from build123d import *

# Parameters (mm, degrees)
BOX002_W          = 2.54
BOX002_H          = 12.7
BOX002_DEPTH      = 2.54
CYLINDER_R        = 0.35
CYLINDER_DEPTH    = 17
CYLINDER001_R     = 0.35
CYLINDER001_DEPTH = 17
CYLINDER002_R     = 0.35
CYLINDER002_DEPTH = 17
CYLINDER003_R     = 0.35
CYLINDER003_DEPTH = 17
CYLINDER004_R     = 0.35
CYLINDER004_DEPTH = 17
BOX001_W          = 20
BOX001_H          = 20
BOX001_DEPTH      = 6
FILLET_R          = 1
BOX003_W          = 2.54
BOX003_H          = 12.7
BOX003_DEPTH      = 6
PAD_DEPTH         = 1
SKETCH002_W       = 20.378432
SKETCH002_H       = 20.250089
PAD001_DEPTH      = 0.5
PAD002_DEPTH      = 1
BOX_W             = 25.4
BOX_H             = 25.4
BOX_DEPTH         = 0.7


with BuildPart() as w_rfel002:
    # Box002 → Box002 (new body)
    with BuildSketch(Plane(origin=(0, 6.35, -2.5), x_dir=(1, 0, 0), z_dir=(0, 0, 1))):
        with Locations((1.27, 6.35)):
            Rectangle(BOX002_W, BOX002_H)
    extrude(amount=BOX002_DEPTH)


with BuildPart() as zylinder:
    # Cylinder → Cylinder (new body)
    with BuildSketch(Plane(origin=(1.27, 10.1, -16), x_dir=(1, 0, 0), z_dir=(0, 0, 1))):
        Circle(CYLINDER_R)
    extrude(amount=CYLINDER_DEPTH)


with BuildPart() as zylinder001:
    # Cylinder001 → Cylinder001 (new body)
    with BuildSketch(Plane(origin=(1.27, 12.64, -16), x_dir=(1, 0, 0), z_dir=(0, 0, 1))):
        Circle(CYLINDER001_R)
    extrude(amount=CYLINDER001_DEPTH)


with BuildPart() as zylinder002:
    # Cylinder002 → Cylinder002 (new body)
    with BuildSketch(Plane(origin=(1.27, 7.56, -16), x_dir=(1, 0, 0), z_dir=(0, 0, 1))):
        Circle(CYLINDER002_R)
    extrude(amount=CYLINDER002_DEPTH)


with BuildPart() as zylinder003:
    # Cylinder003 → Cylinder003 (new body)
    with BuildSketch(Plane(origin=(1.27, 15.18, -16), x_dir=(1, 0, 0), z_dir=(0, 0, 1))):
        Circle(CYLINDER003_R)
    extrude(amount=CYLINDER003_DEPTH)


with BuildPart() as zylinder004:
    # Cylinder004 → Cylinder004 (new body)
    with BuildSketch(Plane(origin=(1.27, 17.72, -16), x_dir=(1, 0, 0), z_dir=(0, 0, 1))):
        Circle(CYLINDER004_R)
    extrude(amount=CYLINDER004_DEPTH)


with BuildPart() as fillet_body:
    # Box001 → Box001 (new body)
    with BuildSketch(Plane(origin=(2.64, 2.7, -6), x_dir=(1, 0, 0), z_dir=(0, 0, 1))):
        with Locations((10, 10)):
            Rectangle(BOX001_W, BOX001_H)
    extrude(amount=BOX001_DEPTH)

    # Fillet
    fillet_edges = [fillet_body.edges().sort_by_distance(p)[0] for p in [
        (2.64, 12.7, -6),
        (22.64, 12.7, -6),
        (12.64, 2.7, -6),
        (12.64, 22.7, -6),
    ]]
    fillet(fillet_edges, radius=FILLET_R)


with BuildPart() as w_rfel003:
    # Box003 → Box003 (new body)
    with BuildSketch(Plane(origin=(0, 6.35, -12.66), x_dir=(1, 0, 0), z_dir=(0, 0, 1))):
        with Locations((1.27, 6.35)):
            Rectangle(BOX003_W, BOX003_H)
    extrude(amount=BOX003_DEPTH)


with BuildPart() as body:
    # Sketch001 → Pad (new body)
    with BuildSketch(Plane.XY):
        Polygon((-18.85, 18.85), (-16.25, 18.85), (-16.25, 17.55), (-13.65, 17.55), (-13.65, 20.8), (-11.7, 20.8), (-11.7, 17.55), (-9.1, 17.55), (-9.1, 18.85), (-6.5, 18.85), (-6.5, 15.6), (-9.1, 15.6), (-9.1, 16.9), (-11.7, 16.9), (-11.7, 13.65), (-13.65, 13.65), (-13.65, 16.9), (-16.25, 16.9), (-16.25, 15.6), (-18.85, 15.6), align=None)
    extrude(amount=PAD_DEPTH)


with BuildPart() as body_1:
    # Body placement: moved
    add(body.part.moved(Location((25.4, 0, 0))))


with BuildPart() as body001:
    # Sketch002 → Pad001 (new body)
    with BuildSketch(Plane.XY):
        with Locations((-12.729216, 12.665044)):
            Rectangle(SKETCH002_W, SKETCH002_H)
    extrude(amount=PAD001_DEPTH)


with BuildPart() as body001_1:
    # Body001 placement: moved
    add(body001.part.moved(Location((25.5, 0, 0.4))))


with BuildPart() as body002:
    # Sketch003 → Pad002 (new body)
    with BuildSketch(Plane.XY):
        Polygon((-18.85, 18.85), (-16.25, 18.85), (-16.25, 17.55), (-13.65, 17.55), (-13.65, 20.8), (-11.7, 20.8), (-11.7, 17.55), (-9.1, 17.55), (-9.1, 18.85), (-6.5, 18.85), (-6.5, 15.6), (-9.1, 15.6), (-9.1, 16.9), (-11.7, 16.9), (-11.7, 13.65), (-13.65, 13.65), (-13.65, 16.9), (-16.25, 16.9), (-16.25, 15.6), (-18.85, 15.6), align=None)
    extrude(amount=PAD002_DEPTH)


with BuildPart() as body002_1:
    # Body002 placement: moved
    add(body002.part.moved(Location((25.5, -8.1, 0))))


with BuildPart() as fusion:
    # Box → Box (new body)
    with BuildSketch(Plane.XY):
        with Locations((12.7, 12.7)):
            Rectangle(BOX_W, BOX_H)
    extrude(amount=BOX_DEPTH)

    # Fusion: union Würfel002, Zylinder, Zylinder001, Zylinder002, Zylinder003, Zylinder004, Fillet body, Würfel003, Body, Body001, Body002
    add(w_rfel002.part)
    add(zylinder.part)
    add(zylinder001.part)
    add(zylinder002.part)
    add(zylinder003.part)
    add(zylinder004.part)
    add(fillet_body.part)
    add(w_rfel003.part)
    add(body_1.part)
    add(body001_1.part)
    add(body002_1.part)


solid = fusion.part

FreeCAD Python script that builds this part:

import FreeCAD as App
import Part
import Sketcher
from FreeCAD import Vector
Q = App.Units.Quantity


def edges_at(feature, points):
    """Names of the edges that pass closest to the given points."""
    edges = feature.Shape.Edges
    near = lambda p: min(range(len(edges)), key=lambda i: edges[i].distToShape(Part.Vertex(*p))[0])
    return sorted({f"Edge{near(p) + 1}" for p in points})


def add_polygon(sketch, points):
    """Adds a closed chain of lines whose ends are joined by coincident constraints."""
    first, n = sketch.GeometryCount, len(points)
    for a, b in zip(points, points[1:] + points[:1]):
        sketch.addGeometry(Part.LineSegment(App.Vector(*a, 0), App.Vector(*b, 0)), False)
    for i in range(n):
        sketch.addConstraint(Sketcher.Constraint("Coincident", first + i, 2, first + (i + 1) % n, 1))

doc = App.newDocument("Part")
body = doc.addObject("PartDesign::Body", "Body")

# Sketch on XY plane
sketch1 = body.newObject("Sketcher::SketchObject", "Sketch")
sketch1.AttachmentSupport = (doc.getObject("XY_Plane"), [""])
sketch1.MapMode = "FlatFace"
sketch1.AttachmentOffset = App.Placement(Vector(0, 0, -2.5), App.Rotation())
add_polygon(sketch1, [(0, 19.1), (0, 6.3), (2.5, 6.3), (2.5, 19.1)])  # lines 0-3
sketch1.addConstraint([
    Sketcher.Constraint("Vertical", 0),
    Sketcher.Constraint("Horizontal", 1),
    Sketcher.Constraint("Vertical", 2),
    Sketcher.Constraint("Horizontal", 3),
    Sketcher.Constraint("PointOnObject", 0, 2, -2),
    Sketcher.Constraint("DistanceY", 0, 2, 0, 1, Q("12.7 mm")),
    Sketcher.Constraint("DistanceX", 1, 1, 1, 2, Q("2.54 mm")),
    Sketcher.Constraint("DistanceY", -1, 1, 0, 2, Q("6.35 mm")),
])
pad1 = body.newObject("PartDesign::Pad", "Pad")
pad1.Profile = sketch1
pad1.Length = 2.54
body2 = doc.addObject("PartDesign::Body", "Body001")

# Sketch on XY plane
sketch2 = body2.newObject("Sketcher::SketchObject", "Sketch001")
sketch2.AttachmentSupport = (doc.getObject("XY_Plane001"), [""])
sketch2.MapMode = "FlatFace"
sketch2.AttachmentOffset = App.Placement(Vector(0, 0, -16), App.Rotation())
sketch2.addGeometry(Part.Circle(Vector(1.27, 10.1, 0), Vector(0, 0, 1), 0.35), False)
sketch2.addConstraint([
    Sketcher.Constraint("Diameter", 0, Q("0.7 mm")),
    Sketcher.Constraint("DistanceY", -1, 1, 0, 3, Q("10.1 mm")),
    Sketcher.Constraint("DistanceX", -1, 1, 0, 3, Q("1.27 mm")),
])
pad2 = body2.newObject("PartDesign::Pad", "Pad001")
pad2.Profile = sketch2
pad2.Length = 17
body3 = doc.addObject("PartDesign::Body", "Body002")

# Sketch on XY plane
sketch3 = body3.newObject("Sketcher::SketchObject", "Sketch002")
sketch3.AttachmentSupport = (doc.getObject("XY_Plane002"), [""])
sketch3.MapMode = "FlatFace"
sketch3.AttachmentOffset = App.Placement(Vector(0, 0, -16), App.Rotation())
sketch3.addGeometry(Part.Circle(Vector(1.27, 12.64, 0), Vector(0, 0, 1), 0.35), False)
sketch3.addConstraint([
    Sketcher.Constraint("Diameter", 0, Q("0.7 mm")),
    Sketcher.Constraint("DistanceX", -1, 1, 0, 3, Q("1.27 mm")),
    Sketcher.Constraint("DistanceY", -1, 1, 0, 3, Q("12.64 mm")),
])
pad3 = body3.newObject("PartDesign::Pad", "Pad002")
pad3.Profile = sketch3
pad3.Length = 17
body4 = doc.addObject("PartDesign::Body", "Body003")

# Sketch on XY plane
sketch4 = body4.newObject("Sketcher::SketchObject", "Sketch003")
sketch4.AttachmentSupport = (doc.getObject("XY_Plane003"), [""])
sketch4.MapMode = "FlatFace"
sketch4.AttachmentOffset = App.Placement(Vector(0, 0, -16), App.Rotation())
sketch4.addGeometry(Part.Circle(Vector(1.27, 7.56, 0), Vector(0, 0, 1), 0.35), False)
sketch4.addConstraint([
    Sketcher.Constraint("Diameter", 0, Q("0.7 mm")),
    Sketcher.Constraint("DistanceX", -1, 1, 0, 3, Q("1.27 mm")),
    Sketcher.Constraint("DistanceY", -1, 1, 0, 3, Q("7.56 mm")),
])
pad4 = body4.newObject("PartDesign::Pad", "Pad003")
pad4.Profile = sketch4
pad4.Length = 17
body5 = doc.addObject("PartDesign::Body", "Body004")

# Sketch on XY plane
sketch5 = body5.newObject("Sketcher::SketchObject", "Sketch004")
sketch5.AttachmentSupport = (doc.getObject("XY_Plane004"), [""])
sketch5.MapMode = "FlatFace"
sketch5.AttachmentOffset = App.Placement(Vector(0, 0, -16), App.Rotation())
sketch5.addGeometry(Part.Circle(Vector(1.27, 15.18, 0), Vector(0, 0, 1), 0.35), False)
sketch5.addConstraint([
    Sketcher.Constraint("Diameter", 0, Q("0.7 mm")),
    Sketcher.Constraint("DistanceX", -1, 1, 0, 3, Q("1.27 mm")),
    Sketcher.Constraint("DistanceY", -1, 1, 0, 3, Q("15.18 mm")),
])
pad5 = body5.newObject("PartDesign::Pad", "Pad004")
pad5.Profile = sketch5
pad5.Length = 17
body6 = doc.addObject("PartDesign::Body", "Body005")

# Sketch on XY plane
sketch6 = body6.newObject("Sketcher::SketchObject", "Sketch005")
sketch6.AttachmentSupport = (doc.getObject("XY_Plane005"), [""])
sketch6.MapMode = "FlatFace"
sketch6.AttachmentOffset = App.Placement(Vector(0, 0, -16), App.Rotation())
sketch6.addGeometry(Part.Circle(Vector(1.27, 17.72, 0), Vector(0, 0, 1), 0.35), False)
sketch6.addConstraint([
    Sketcher.Constraint("Diameter", 0, Q("0.7 mm")),
    Sketcher.Constraint("DistanceX", -1, 1, 0, 3, Q("1.27 mm")),
    Sketcher.Constraint("DistanceY", -1, 1, 0, 3, Q("17.72 mm")),
])
pad6 = body6.newObject("PartDesign::Pad", "Pad005")
pad6.Profile = sketch6
pad6.Length = 17
body7 = doc.addObject("PartDesign::Body", "Body006")

# Sketch on XY plane
sketch7 = body7.newObject("Sketcher::SketchObject", "Sketch006")
sketch7.AttachmentSupport = (doc.getObject("XY_Plane006"), [""])
sketch7.MapMode = "FlatFace"
sketch7.AttachmentOffset = App.Placement(Vector(0, 0, -6), App.Rotation())
add_polygon(sketch7, [(3, 23), (3, 3), (23, 3), (23, 23)])  # lines 0-3
sketch7.addConstraint([
    Sketcher.Constraint("Vertical", 0),
    Sketcher.Constraint("Horizontal", 1),
    Sketcher.Constraint("Vertical", 2),
    Sketcher.Constraint("Horizontal", 3),
    Sketcher.Constraint("Equal", 3, 0),
    Sketcher.Constraint("DistanceX", 1, 1, 1, 2, Q("20 mm")),
    Sketcher.Constraint("DistanceY", -1, 1, 0, 2, Q("2.7 mm")),
    Sketcher.Constraint("DistanceX", -1, 1, 0, 2, Q("2.64 mm")),
])
pad7 = body7.newObject("PartDesign::Pad", "Pad006")
pad7.Profile = sketch7
pad7.Length = 6
doc.recompute()

fillet = body7.newObject("PartDesign::Fillet", "Fillet")
fillet.Base = (pad7, edges_at(pad7, [
    (2.64, 12.7, -6),
    (22.64, 12.7, -6),
    (12.64, 2.7, -6),
    (12.64, 22.7, -6),
]))
fillet.Radius = 1
body8 = doc.addObject("PartDesign::Body", "Body007")

# Sketch on XY plane
sketch8 = body8.newObject("Sketcher::SketchObject", "Sketch007")
sketch8.AttachmentSupport = (doc.getObject("XY_Plane007"), [""])
sketch8.MapMode = "FlatFace"
sketch8.AttachmentOffset = App.Placement(Vector(0, 0, -12.66), App.Rotation())
add_polygon(sketch8, [(0, 19.1), (0, 6.3), (2.5, 6.3), (2.5, 19.1)])  # lines 0-3
sketch8.addConstraint([
    Sketcher.Constraint("Vertical", 0),
    Sketcher.Constraint("Horizontal", 1),
    Sketcher.Constraint("Vertical", 2),
    Sketcher.Constraint("Horizontal", 3),
    Sketcher.Constraint("PointOnObject", 0, 2, -2),
    Sketcher.Constraint("DistanceY", 0, 2, 0, 1, Q("12.7 mm")),
    Sketcher.Constraint("DistanceX", 1, 1, 1, 2, Q("2.54 mm")),
    Sketcher.Constraint("DistanceY", -1, 1, 0, 2, Q("6.35 mm")),
])
pad8 = body8.newObject("PartDesign::Pad", "Pad007")
pad8.Profile = sketch8
pad8.Length = 6
body9 = doc.addObject("PartDesign::Body", "Body008")

# Sketch on XY plane
sketch9 = body9.newObject("Sketcher::SketchObject", "Sketch008")
sketch9.AttachmentSupport = (doc.getObject("XY_Plane008"), [""])
sketch9.MapMode = "FlatFace"
add_polygon(sketch9, [(-16.2, 18.9), (-18.9, 18.9), (-18.9, 15.6), (-16.2, 15.6), (-16.2, 16.9), (-13.7, 16.9), (-13.7, 13.7), (-11.7, 13.7), (-11.7, 16.9), (-9.1, 16.9), (-9.1, 15.6), (-6.5, 15.6), (-6.5, 18.9), (-9.1, 18.9), (-9.1, 17.6), (-11.7, 17.6), (-11.7, 20.8), (-13.7, 20.8), (-13.7, 17.6), (-16.2, 17.6)])  # lines 0-19
sketch9.addConstraint([
    Sketcher.Constraint("Horizontal", 0),
    Sketcher.Constraint("Vertical", 1),
    Sketcher.Constraint("Horizontal", 2),
    Sketcher.Constraint("Vertical", 3),
    Sketcher.Constraint("Horizontal", 4),
    Sketcher.Constraint("Vertical", 5),
    Sketcher.Constraint("Horizontal", 6),
    Sketcher.Constraint("Vertical", 7),
    Sketcher.Constraint("Horizontal", 8),
    Sketcher.Constraint("Vertical", 9),
    Sketcher.Constraint("Horizontal", 10),
    Sketcher.Constraint("Vertical", 11),
    Sketcher.Constraint("Horizontal", 12),
    Sketcher.Constraint("Vertical", 13),
    Sketcher.Constraint("Horizontal", 14),
    Sketcher.Constraint("Vertical", 15),
    Sketcher.Constraint("Horizontal", 16),
    Sketcher.Constraint("Vertical", 17),
    Sketcher.Constraint("Horizontal", 18),
    Sketcher.Constraint("Vertical", 19),
    Sketcher.Constraint("Horizontal", 4, 2, 7, 2),
    Sketcher.Constraint("Horizontal", 2, 2, 9, 2),
    Sketcher.Constraint("Horizontal", 0, 2, 11, 2),
    Sketcher.Constraint("Horizontal", 14, 2, 17, 2),
    Sketcher.Constraint("Vertical", 9, 2, 12, 2),
    Sketcher.Constraint("Vertical", 7, 2, 14, 2),
    Sketcher.Constraint("Vertical", 5, 2, 16, 2),
    Sketcher.Constraint("Vertical", 3, 2, 18, 2),
    Sketcher.Constraint("Equal", 2, 4),
    Sketcher.Constraint("Equal", 4, 8),
    Sketcher.Constraint("Equal", 8, 10),
    Sketcher.Constraint("Equal", 1, 5),
    Sketcher.Constraint("Equal", 9, 13),
    Sketcher.Constraint("Equal", 11, 15),
    Sketcher.Constraint("DistanceX", 0, 2, 0, 1, Q("2.6 mm")),
    Sketcher.Constraint("DistanceY", 3, 1, 3, 2, Q("1.3 mm")),
    Sketcher.Constraint("DistanceX", 6, 1, 6, 2, Q("1.95 mm")),
    Sketcher.Constraint("DistanceY", 1, 2, 1, 1, Q("3.25 mm")),
    Sketcher.Constraint("DistanceY", -1, 1, 1, 2, Q("15.6 mm")),
    Sketcher.Constraint("DistanceX", 6, 2, -1, 1, Q("11.7 mm")),
])
pad9 = body9.newObject("PartDesign::Pad", "Pad008")
pad9.Profile = sketch9
pad9.Length = 1
body10 = doc.addObject("PartDesign::Body", "Body009")
doc.recompute()

body9.Placement = App.Placement(Vector(25.4, 0, 0), App.Rotation(Vector(0, 0, 1), 0))
boolean = body10.newObject("PartDesign::Boolean", "Boolean")
boolean.Type = "Fuse"
boolean.addObjects([body9])
body11 = doc.addObject("PartDesign::Body", "Body010")

# Sketch on XY plane
sketch10 = body11.newObject("Sketcher::SketchObject", "Sketch009")
sketch10.AttachmentSupport = (doc.getObject("XY_Plane010"), [""])
sketch10.MapMode = "FlatFace"
add_polygon(sketch10, [(-23, 23), (-23, 3), (-3, 3), (-3, 23)])  # lines 0-3
sketch10.addConstraint([
    Sketcher.Constraint("Vertical", 0),
    Sketcher.Constraint("Horizontal", 1),
    Sketcher.Constraint("Vertical", 2),
    Sketcher.Constraint("Horizontal", 3),
    Sketcher.Constraint("DistanceY", -1, 1, 0, 2, Q("2.539999 mm")),
    Sketcher.Constraint("DistanceX", 1, 2, -1, 1, Q("2.54 mm")),
    Sketcher.Constraint("DistanceX", 1, 1, 1, 2, Q("20.378432 mm")),
    Sketcher.Constraint("DistanceY", 0, 2, 0, 1, Q("20.250089 mm")),
])
pad10 = body11.newObject("PartDesign::Pad", "Pad009")
pad10.Profile = sketch10
pad10.Length = 0.5
body12 = doc.addObject("PartDesign::Body", "Body011")
doc.recompute()

body11.Placement = App.Placement(Vector(25.5, 0, 0.4), App.Rotation(Vector(0, 0, 1), 0))
boolean2 = body12.newObject("PartDesign::Boolean", "Boolean001")
boolean2.Type = "Fuse"
boolean2.addObjects([body11])
body13 = doc.addObject("PartDesign::Body", "Body012")

# Sketch on XY plane
sketch11 = body13.newObject("Sketcher::SketchObject", "Sketch010")
sketch11.AttachmentSupport = (doc.getObject("XY_Plane012"), [""])
sketch11.MapMode = "FlatFace"
add_polygon(sketch11, [(-16.2, 18.9), (-18.9, 18.9), (-18.9, 15.6), (-16.2, 15.6), (-16.2, 16.9), (-13.7, 16.9), (-13.7, 13.7), (-11.7, 13.7), (-11.7, 16.9), (-9.1, 16.9), (-9.1, 15.6), (-6.5, 15.6), (-6.5, 18.9), (-9.1, 18.9), (-9.1, 17.6), (-11.7, 17.6), (-11.7, 20.8), (-13.7, 20.8), (-13.7, 17.6), (-16.2, 17.6)])  # lines 0-19
sketch11.addConstraint([
    Sketcher.Constraint("Horizontal", 0),
    Sketcher.Constraint("Vertical", 1),
    Sketcher.Constraint("Horizontal", 2),
    Sketcher.Constraint("Vertical", 3),
    Sketcher.Constraint("Horizontal", 4),
    Sketcher.Constraint("Vertical", 5),
    Sketcher.Constraint("Horizontal", 6),
    Sketcher.Constraint("Vertical", 7),
    Sketcher.Constraint("Horizontal", 8),
    Sketcher.Constraint("Vertical", 9),
    Sketcher.Constraint("Horizontal", 10),
    Sketcher.Constraint("Vertical", 11),
    Sketcher.Constraint("Horizontal", 12),
    Sketcher.Constraint("Vertical", 13),
    Sketcher.Constraint("Horizontal", 14),
    Sketcher.Constraint("Vertical", 15),
    Sketcher.Constraint("Horizontal", 16),
    Sketcher.Constraint("Vertical", 17),
    Sketcher.Constraint("Horizontal", 18),
    Sketcher.Constraint("Vertical", 19),
    Sketcher.Constraint("Horizontal", 4, 2, 7, 2),
    Sketcher.Constraint("Horizontal", 2, 2, 9, 2),
    Sketcher.Constraint("Horizontal", 0, 2, 11, 2),
    Sketcher.Constraint("Horizontal", 14, 2, 17, 2),
    Sketcher.Constraint("Vertical", 9, 2, 12, 2),
    Sketcher.Constraint("Vertical", 7, 2, 14, 2),
    Sketcher.Constraint("Vertical", 5, 2, 16, 2),
    Sketcher.Constraint("Vertical", 3, 2, 18, 2),
    Sketcher.Constraint("Equal", 2, 4),
    Sketcher.Constraint("Equal", 4, 8),
    Sketcher.Constraint("Equal", 8, 10),
    Sketcher.Constraint("Equal", 1, 5),
    Sketcher.Constraint("Equal", 9, 13),
    Sketcher.Constraint("Equal", 11, 15),
    Sketcher.Constraint("DistanceX", 0, 2, 0, 1, Q("2.6 mm")),
    Sketcher.Constraint("DistanceY", 3, 1, 3, 2, Q("1.3 mm")),
    Sketcher.Constraint("DistanceX", 6, 1, 6, 2, Q("1.95 mm")),
    Sketcher.Constraint("DistanceY", 1, 2, 1, 1, Q("3.25 mm")),
    Sketcher.Constraint("DistanceY", -1, 1, 1, 2, Q("15.6 mm")),
    Sketcher.Constraint("DistanceX", 6, 2, -1, 1, Q("11.7 mm")),
])
pad11 = body13.newObject("PartDesign::Pad", "Pad010")
pad11.Profile = sketch11
pad11.Length = 1
body14 = doc.addObject("PartDesign::Body", "Body013")
doc.recompute()

body13.Placement = App.Placement(Vector(25.5, -8.1, 0), App.Rotation(Vector(0, 0, 1), 0))
boolean3 = body14.newObject("PartDesign::Boolean", "Boolean002")
boolean3.Type = "Fuse"
boolean3.addObjects([body13])
body15 = doc.addObject("PartDesign::Body", "Body014")

# Sketch on XY plane
sketch12 = body15.newObject("Sketcher::SketchObject", "Sketch011")
sketch12.AttachmentSupport = (doc.getObject("XY_Plane014"), [""])
sketch12.MapMode = "FlatFace"
add_polygon(sketch12, [(0, 25), (0, 0), (25, 0), (25, 25)])  # lines 0-3
sketch12.addConstraint([
    Sketcher.Constraint("Vertical", 0),
    Sketcher.Constraint("Horizontal", 1),
    Sketcher.Constraint("Vertical", 2),
    Sketcher.Constraint("Horizontal", 3),
    Sketcher.Constraint("Coincident", 0, 2, -1, 1),
    Sketcher.Constraint("Equal", 3, 0),
    Sketcher.Constraint("DistanceX", 1, 1, 1, 2, Q("25.4 mm")),
])
pad12 = body15.newObject("PartDesign::Pad", "Pad011")
pad12.Profile = sketch12
pad12.Length = 0.7
doc.recompute()

boolean4 = body15.newObject("PartDesign::Boolean", "Boolean003")
boolean4.Type = "Fuse"
boolean4.addObjects([body])
doc.recompute()

boolean5 = body15.newObject("PartDesign::Boolean", "Boolean004")
boolean5.Type = "Fuse"
boolean5.addObjects([body2])
doc.recompute()

boolean6 = body15.newObject("PartDesign::Boolean", "Boolean005")
boolean6.Type = "Fuse"
boolean6.addObjects([body3])
doc.recompute()

boolean7 = body15.newObject("PartDesign::Boolean", "Boolean006")
boolean7.Type = "Fuse"
boolean7.addObjects([body4])
doc.recompute()

boolean8 = body15.newObject("PartDesign::Boolean", "Boolean007")
boolean8.Type = "Fuse"
boolean8.addObjects([body5])
doc.recompute()

boolean9 = body15.newObject("PartDesign::Boolean", "Boolean008")
boolean9.Type = "Fuse"
boolean9.addObjects([body6])
doc.recompute()

boolean10 = body15.newObject("PartDesign::Boolean", "Boolean009")
boolean10.Type = "Fuse"
boolean10.addObjects([body7])
doc.recompute()

boolean11 = body15.newObject("PartDesign::Boolean", "Boolean010")
boolean11.Type = "Fuse"
boolean11.addObjects([body8])
doc.recompute()

boolean12 = body15.newObject("PartDesign::Boolean", "Boolean011")
boolean12.Type = "Fuse"
boolean12.addObjects([body10])
doc.recompute()

boolean13 = body15.newObject("PartDesign::Boolean", "Boolean012")
boolean13.Type = "Fuse"
boolean13.addObjects([body12])
doc.recompute()

boolean14 = body15.newObject("PartDesign::Boolean", "Boolean013")
boolean14.Type = "Fuse"
boolean14.addObjects([body14])

doc.recompute()
